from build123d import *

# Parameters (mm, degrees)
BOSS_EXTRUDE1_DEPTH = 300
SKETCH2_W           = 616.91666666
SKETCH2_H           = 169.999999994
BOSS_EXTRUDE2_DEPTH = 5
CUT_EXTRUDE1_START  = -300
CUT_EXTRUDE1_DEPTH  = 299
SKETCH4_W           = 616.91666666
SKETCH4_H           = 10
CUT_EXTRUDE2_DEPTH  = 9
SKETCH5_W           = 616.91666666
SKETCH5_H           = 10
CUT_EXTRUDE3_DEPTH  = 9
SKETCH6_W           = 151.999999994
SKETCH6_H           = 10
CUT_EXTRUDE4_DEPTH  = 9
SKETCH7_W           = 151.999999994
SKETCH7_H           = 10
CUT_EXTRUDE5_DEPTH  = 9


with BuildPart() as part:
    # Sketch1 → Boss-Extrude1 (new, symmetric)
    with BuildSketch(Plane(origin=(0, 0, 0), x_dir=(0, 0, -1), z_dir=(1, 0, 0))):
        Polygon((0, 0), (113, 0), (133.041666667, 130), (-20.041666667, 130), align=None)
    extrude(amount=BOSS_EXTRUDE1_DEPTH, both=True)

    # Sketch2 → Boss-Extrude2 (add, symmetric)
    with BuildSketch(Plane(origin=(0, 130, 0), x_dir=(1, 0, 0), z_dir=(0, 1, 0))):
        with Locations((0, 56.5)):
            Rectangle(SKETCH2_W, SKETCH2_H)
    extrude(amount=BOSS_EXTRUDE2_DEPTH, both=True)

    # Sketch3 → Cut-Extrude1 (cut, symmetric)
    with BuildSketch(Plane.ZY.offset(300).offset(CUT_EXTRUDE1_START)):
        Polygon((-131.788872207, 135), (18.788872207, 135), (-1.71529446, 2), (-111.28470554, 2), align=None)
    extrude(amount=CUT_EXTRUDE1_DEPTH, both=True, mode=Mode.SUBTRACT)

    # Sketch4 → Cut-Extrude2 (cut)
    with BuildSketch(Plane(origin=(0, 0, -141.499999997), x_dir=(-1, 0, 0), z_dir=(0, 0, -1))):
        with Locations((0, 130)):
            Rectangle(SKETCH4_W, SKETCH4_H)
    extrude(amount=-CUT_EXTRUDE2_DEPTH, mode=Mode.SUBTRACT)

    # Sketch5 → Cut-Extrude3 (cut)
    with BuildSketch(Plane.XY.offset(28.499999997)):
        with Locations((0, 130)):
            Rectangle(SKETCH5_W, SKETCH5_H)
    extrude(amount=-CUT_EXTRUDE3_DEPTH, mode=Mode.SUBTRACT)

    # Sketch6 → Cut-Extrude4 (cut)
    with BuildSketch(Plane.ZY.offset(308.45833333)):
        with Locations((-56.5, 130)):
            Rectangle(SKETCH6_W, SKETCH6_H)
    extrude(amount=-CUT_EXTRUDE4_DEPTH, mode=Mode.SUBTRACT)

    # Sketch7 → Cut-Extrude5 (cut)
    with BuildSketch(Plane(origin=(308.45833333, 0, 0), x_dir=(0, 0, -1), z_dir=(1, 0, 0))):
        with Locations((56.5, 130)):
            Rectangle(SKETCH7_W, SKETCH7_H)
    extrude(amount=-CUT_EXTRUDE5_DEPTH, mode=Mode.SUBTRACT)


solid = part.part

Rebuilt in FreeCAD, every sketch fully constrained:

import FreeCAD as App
import Part
import Sketcher
from FreeCAD import Vector
Q = App.Units.Quantity


def add_polygon(sketch, points):
    """Adds a closed chain of lines whose ends are joined by coincident constraints."""
    first, n = sketch.GeometryCount, len(points)
    for a, b in zip(points, points[1:] + points[:1]):
        sketch.addGeometry(Part.LineSegment(App.Vector(*a, 0), App.Vector(*b, 0)), False)
    for i in range(n):
        sketch.addConstraint(Sketcher.Constraint("Coincident", first + i, 2, first + (i + 1) % n, 1))

doc = App.newDocument("Part")
body = doc.addObject("PartDesign::Body", "Body")

sketch1 = body.newObject("Sketcher::SketchObject", "Sketch")
sketch1.AttachmentSupport = (doc.getObject("YZ_Plane"), [""])
sketch1.MapMode = "FlatFace"
add_polygon(sketch1, [(0, 0), (0, -113), (130, -133.041667), (130, 20.041667)])
sketch1.addConstraint(Sketcher.Constraint("Vertical", 0))
sketch1.addConstraint(Sketcher.Constraint("Vertical", 2))
sketch1.addConstraint(Sketcher.Constraint("Coincident", 3, 2, -1, 1))
sketch1.addConstraint(Sketcher.Constraint("Equal", 1, 3))
sketch1.addConstraint(Sketcher.Constraint("DistanceY", 0, 2, 0, 1, Q("113 mm")))
sketch1.addConstraint(Sketcher.Constraint("DistanceX", -1, 1, 1, 2, Q("130 mm")))
sketch1.addConstraint(Sketcher.Constraint("DistanceY", 2, 1, 2, 2, Q("153.083333 mm")))
pad1 = body.newObject("PartDesign::Pad", "Pad")
pad1.Profile = sketch1
pad1.Length = 600
pad1.Midplane = True

sketch2 = body.newObject("Sketcher::SketchObject", "Sketch001")
sketch2.AttachmentSupport = (doc.getObject("XZ_Plane"), [""])
sketch2.MapMode = "FlatFace"
sketch2.AttachmentOffset = App.Placement(Vector(0, 0, -130), App.Rotation())
add_polygon(sketch2, [(-308.458333, -141.5), (-308.458333, 28.5), (308.458333, 28.5), (308.458333, -141.5)])
sketch2.addConstraint(Sketcher.Constraint("Vertical", 0))
sketch2.addConstraint(Sketcher.Constraint("Horizontal", 1))
sketch2.addConstraint(Sketcher.Constraint("Vertical", 2))
sketch2.addConstraint(Sketcher.Constraint("Horizontal", 3))
sketch2.addConstraint(Sketcher.Constraint("DistanceY", 0, 1, 0, 2, Q("170 mm")))
sketch2.addConstraint(Sketcher.Constraint("DistanceY", -1, 1, 0, 2, Q("28.5 mm")))
sketch2.addConstraint(Sketcher.Constraint("DistanceX", 1, 1, 1, 2, Q("616.916667 mm")))
sketch2.addConstraint(Sketcher.Constraint("DistanceX", 0, 2, -1, 1, Q("308.458333 mm")))
pad2 = body.newObject("PartDesign::Pad", "Pad001")
pad2.Profile = sketch2
pad2.Length = 10
pad2.Midplane = True

sketch3 = body.newObject("Sketcher::SketchObject", "Sketch002")
sketch3.AttachmentSupport = (doc.getObject("YZ_Plane"), [""])
sketch3.MapMode = "FlatFace"
add_polygon(sketch3, [(135, 18.788872), (135, -131.788872), (2, -111.284706), (2, -1.715294)])
sketch3.addConstraint(Sketcher.Constraint("Vertical", 0))
sketch3.addConstraint(Sketcher.Constraint("Vertical", 2))
sketch3.addConstraint(Sketcher.Constraint("Equal", 1, 3))
sketch3.addConstraint(Sketcher.Constraint("DistanceX", -1, 1, 0, 2, Q("135 mm")))
sketch3.addConstraint(Sketcher.Constraint("DistanceX", -1, 1, 1, 2, Q("2 mm")))
sketch3.addConstraint(Sketcher.Constraint("DistanceY", 2, 1, 2, 2, Q("109.569411 mm")))
sketch3.addConstraint(Sketcher.Constraint("Distance", 1, Q("134.571248 mm")))
sketch3.addConstraint(Sketcher.Constraint("DistanceY", 0, 2, -1, 1, Q("131.788872 mm")))
pocket1 = body.newObject("PartDesign::Pocket", "Pocket")
pocket1.Profile = sketch3
pocket1.Length = 598
pocket1.Midplane = True

sketch4 = body.newObject("Sketcher::SketchObject", "Sketch003")
sketch4.AttachmentSupport = (doc.getObject("XY_Plane"), [""])
sketch4.MapMode = "FlatFace"
sketch4.AttachmentOffset = App.Placement(Vector(0, 0, -141.5), App.Rotation())
add_polygon(sketch4, [(308.458333, 135), (308.458333, 125), (-308.458333, 125), (-308.458333, 135)])
sketch4.addConstraint(Sketcher.Constraint("Vertical", 0))
sketch4.addConstraint(Sketcher.Constraint("Horizontal", 1))
sketch4.addConstraint(Sketcher.Constraint("Vertical", 2))
sketch4.addConstraint(Sketcher.Constraint("Horizontal", 3))
sketch4.addConstraint(Sketcher.Constraint("DistanceY", 0, 2, 0, 1, Q("10 mm")))
sketch4.addConstraint(Sketcher.Constraint("DistanceY", -1, 1, 0, 2, Q("125 mm")))
sketch4.addConstraint(Sketcher.Constraint("DistanceX", 1, 2, 1, 1, Q("616.916667 mm")))
sketch4.addConstraint(Sketcher.Constraint("DistanceX", -1, 1, 0, 2, Q("308.458333 mm")))
pocket2 = body.newObject("PartDesign::Pocket", "Pocket001")
pocket2.Profile = sketch4
pocket2.Length = 9
pocket2.Reversed = True

sketch5 = body.newObject("Sketcher::SketchObject", "Sketch004")
sketch5.AttachmentSupport = (doc.getObject("XY_Plane"), [""])
sketch5.MapMode = "FlatFace"
sketch5.AttachmentOffset = App.Placement(Vector(0, 0, 28.5), App.Rotation())
add_polygon(sketch5, [(-308.458333, 135), (-308.458333, 125), (308.458333, 125), (308.458333, 135)])
sketch5.addConstraint(Sketcher.Constraint("Vertical", 0))
sketch5.addConstraint(Sketcher.Constraint("Horizontal", 1))
sketch5.addConstraint(Sketcher.Constraint("Vertical", 2))
sketch5.addConstraint(Sketcher.Constraint("Horizontal", 3))
sketch5.addConstraint(Sketcher.Constraint("DistanceY", 0, 2, 0, 1, Q("10 mm")))
sketch5.addConstraint(Sketcher.Constraint("DistanceY", -1, 1, 0, 2, Q("125 mm")))
sketch5.addConstraint(Sketcher.Constraint("DistanceX", 1, 1, 1, 2, Q("616.916667 mm")))
sketch5.addConstraint(Sketcher.Constraint("DistanceX", 0, 2, -1, 1, Q("308.458333 mm")))
pocket3 = body.newObject("PartDesign::Pocket", "Pocket002")
pocket3.Profile = sketch5
pocket3.Length = 9

sketch6 = body.newObject("Sketcher::SketchObject", "Sketch005")
sketch6.AttachmentSupport = (doc.getObject("YZ_Plane"), [""])
sketch6.MapMode = "FlatFace"
sketch6.AttachmentOffset = App.Placement(Vector(0, 0, -308.458333), App.Rotation())
add_polygon(sketch6, [(135, -132.5), (125, -132.5), (125, 19.5), (135, 19.5)])
sketch6.addConstraint(Sketcher.Constraint("Horizontal", 0))
sketch6.addConstraint(Sketcher.Constraint("Vertical", 1))
sketch6.addConstraint(Sketcher.Constraint("Horizontal", 2))
sketch6.addConstraint(Sketcher.Constraint("Vertical", 3))
sketch6.addConstraint(Sketcher.Constraint("DistanceX", 0, 2, 0, 1, Q("10 mm")))
sketch6.addConstraint(Sketcher.Constraint("DistanceY", 1, 1, 1, 2, Q("152 mm")))
sketch6.addConstraint(Sketcher.Constraint("DistanceX", -1, 1, 0, 2, Q("125 mm")))
sketch6.addConstraint(Sketcher.Constraint("DistanceY", 0, 2, -1, 1, Q("132.5 mm")))
pocket4 = body.newObject("PartDesign::Pocket", "Pocket003")
pocket4.Profile = sketch6
pocket4.Length = 9
pocket4.Reversed = True

sketch7 = body.newObject("Sketcher::SketchObject", "Sketch006")
sketch7.AttachmentSupport = (doc.getObject("YZ_Plane"), [""])
sketch7.MapMode = "FlatFace"
sketch7.AttachmentOffset = App.Placement(Vector(0, 0, 308.458333), App.Rotation())
add_polygon(sketch7, [(135, 19.5), (125, 19.5), (125, -132.5), (135, -132.5)])
sketch7.addConstraint(Sketcher.Constraint("Horizontal", 0))
sketch7.addConstraint(Sketcher.Constraint("Vertical", 1))
sketch7.addConstraint(Sketcher.Constraint("Horizontal", 2))
sketch7.addConstraint(Sketcher.Constraint("Vertical", 3))
sketch7.addConstraint(Sketcher.Constraint("DistanceX", 0, 2, 0, 1, Q("10 mm")))
sketch7.addConstraint(Sketcher.Constraint("DistanceY", 1, 2, 1, 1, Q("152 mm")))
sketch7.addConstraint(Sketcher.Constraint("DistanceX", -1, 1, 0, 2, Q("125 mm")))
sketch7.addConstraint(Sketcher.Constraint("DistanceY", -1, 1, 0, 2, Q("19.5 mm")))
pocket5 = body.newObject("PartDesign::Pocket", "Pocket004")
pocket5.Profile = sketch7
pocket5.Length = 9

doc.recompute()
